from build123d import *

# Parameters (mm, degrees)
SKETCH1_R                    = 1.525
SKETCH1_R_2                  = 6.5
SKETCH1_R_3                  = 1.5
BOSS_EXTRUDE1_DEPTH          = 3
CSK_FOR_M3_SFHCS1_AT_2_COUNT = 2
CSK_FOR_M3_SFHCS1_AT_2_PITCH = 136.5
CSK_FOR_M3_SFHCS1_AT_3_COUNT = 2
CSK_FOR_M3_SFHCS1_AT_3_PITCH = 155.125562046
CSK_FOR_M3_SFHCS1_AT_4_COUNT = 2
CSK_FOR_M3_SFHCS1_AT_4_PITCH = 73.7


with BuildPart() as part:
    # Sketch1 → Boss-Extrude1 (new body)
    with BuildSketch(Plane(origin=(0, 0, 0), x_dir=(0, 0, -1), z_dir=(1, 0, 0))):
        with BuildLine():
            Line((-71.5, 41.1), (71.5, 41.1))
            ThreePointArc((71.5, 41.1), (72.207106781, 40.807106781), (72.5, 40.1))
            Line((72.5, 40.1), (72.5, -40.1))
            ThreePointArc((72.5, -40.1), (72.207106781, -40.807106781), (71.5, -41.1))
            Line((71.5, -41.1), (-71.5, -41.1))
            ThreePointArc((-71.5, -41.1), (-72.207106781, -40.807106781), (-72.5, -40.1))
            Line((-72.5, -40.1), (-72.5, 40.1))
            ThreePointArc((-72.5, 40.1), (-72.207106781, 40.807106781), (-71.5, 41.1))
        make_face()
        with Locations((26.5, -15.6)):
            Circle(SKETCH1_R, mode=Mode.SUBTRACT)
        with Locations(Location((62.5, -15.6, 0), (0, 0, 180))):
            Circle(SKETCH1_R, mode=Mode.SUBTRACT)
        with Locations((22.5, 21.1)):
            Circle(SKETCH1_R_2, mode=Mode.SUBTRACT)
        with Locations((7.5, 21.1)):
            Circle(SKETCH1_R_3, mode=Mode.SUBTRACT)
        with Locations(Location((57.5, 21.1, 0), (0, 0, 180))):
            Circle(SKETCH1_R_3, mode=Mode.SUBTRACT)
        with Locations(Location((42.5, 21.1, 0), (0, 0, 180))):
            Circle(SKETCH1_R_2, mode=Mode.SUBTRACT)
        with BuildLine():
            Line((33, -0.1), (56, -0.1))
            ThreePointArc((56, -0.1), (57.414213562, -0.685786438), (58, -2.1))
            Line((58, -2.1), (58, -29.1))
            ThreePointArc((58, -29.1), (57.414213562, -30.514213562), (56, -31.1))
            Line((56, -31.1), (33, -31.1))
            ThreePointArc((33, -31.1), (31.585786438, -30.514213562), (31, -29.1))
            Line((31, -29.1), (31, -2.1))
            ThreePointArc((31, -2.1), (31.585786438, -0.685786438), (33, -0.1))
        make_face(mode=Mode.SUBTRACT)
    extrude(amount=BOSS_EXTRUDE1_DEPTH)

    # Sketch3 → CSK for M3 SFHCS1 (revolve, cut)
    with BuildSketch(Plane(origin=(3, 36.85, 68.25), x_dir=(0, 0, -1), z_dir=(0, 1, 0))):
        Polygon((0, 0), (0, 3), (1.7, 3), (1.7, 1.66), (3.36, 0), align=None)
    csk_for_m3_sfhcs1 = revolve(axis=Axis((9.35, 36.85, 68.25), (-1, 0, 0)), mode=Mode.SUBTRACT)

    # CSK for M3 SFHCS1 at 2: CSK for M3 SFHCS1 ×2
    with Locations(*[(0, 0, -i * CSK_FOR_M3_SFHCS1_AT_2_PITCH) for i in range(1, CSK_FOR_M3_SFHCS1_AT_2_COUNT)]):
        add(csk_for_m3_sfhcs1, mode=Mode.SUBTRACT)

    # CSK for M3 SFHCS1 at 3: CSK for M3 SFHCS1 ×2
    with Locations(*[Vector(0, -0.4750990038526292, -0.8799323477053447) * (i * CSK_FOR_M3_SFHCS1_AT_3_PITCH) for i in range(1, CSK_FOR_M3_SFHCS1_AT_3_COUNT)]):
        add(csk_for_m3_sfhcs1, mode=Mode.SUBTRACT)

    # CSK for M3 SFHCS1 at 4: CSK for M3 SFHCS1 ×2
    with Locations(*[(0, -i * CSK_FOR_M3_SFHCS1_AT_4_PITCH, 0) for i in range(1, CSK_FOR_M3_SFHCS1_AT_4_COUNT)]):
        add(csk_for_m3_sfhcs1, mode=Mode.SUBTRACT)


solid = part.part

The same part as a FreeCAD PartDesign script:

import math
import FreeCAD as App
import Part
import Sketcher
from FreeCAD import Vector
Q = App.Units.Quantity


def add_polygon(sketch, points):
    """Adds a closed chain of lines whose ends are joined by coincident constraints."""
    first, n = sketch.GeometryCount, len(points)
    for a, b in zip(points, points[1:] + points[:1]):
        sketch.addGeometry(Part.LineSegment(App.Vector(*a, 0), App.Vector(*b, 0)), False)
    for i in range(n):
        sketch.addConstraint(Sketcher.Constraint("Coincident", first + i, 2, first + (i + 1) % n, 1))

doc = App.newDocument("Part")
body = doc.addObject("PartDesign::Body", "Body")

# Sketch on YZ plane
sketch1 = body.newObject("Sketcher::SketchObject", "Sketch")
sketch1.AttachmentSupport = (doc.getObject("YZ_Plane"), [""])
sketch1.MapMode = "FlatFace"
sketch1.addGeometry([
    Part.LineSegment(Vector(41.1, -71.5, 0), Vector(41.1, 71.5, 0)),  # 0
    Part.ArcOfCircle(Part.Circle(Vector(40.1, 71.5, 0), Vector(0, 0, 1), 1), math.radians(0), math.radians(90)),  # 1
    Part.LineSegment(Vector(40.1, 72.5, 0), Vector(-40.1, 72.5, 0)),  # 2
    Part.ArcOfCircle(Part.Circle(Vector(-40.1, 71.5, 0), Vector(0, 0, 1), 1), math.radians(90), math.radians(180)),  # 3
    Part.LineSegment(Vector(-41.1, 71.5, 0), Vector(-41.1, -71.5, 0)),  # 4
    Part.ArcOfCircle(Part.Circle(Vector(-40.1, -71.5, 0), Vector(0, 0, 1), 1), math.radians(-180), math.radians(-90)),  # 5
    Part.LineSegment(Vector(-40.1, -72.5, 0), Vector(40.1, -72.5, 0)),  # 6
    Part.ArcOfCircle(Part.Circle(Vector(40.1, -71.5, 0), Vector(0, 0, 1), 1), math.radians(-90), math.radians(0)),  # 7
    Part.Circle(Vector(-15.6, -62.5, 0), Vector(0, 0, 1), 1.525),  # 8
    Part.LineSegment(Vector(-0.1, -33, 0), Vector(-0.1, -56, 0)),  # 9
    Part.ArcOfCircle(Part.Circle(Vector(-2.1, -56, 0), Vector(0, 0, 1), 2), math.radians(-90), math.radians(0)),  # 10
    Part.LineSegment(Vector(-2.1, -58, 0), Vector(-29.1, -58, 0)),  # 11
    Part.ArcOfCircle(Part.Circle(Vector(-29.1, -56, 0), Vector(0, 0, 1), 2), math.radians(-180), math.radians(-90)),  # 12
    Part.LineSegment(Vector(-31.1, -56, 0), Vector(-31.1, -33, 0)),  # 13
    Part.ArcOfCircle(Part.Circle(Vector(-29.1, -33, 0), Vector(0, 0, 1), 2), math.radians(90), math.radians(180)),  # 14
    Part.LineSegment(Vector(-29.1, -31, 0), Vector(-2.1, -31, 0)),  # 15
    Part.ArcOfCircle(Part.Circle(Vector(-2.1, -33, 0), Vector(0, 0, 1), 2), math.radians(0), math.radians(90)),  # 16
    Part.Circle(Vector(-15.6, -26.5, 0), Vector(0, 0, 1), 1.525),  # 17
    Part.Circle(Vector(21.1, -57.5, 0), Vector(0, 0, 1), 1.5),  # 18
    Part.Circle(Vector(21.1, -42.5, 0), Vector(0, 0, 1), 6.5),  # 19
    Part.Circle(Vector(21.1, -22.5, 0), Vector(0, 0, 1), 6.5),  # 20
    Part.Circle(Vector(21.1, -7.5, 0), Vector(0, 0, 1), 1.5),  # 21
], False)
sketch1.addConstraint([
    Sketcher.Constraint("Tangent", 0, 2, 1, 1),
    Sketcher.Constraint("Tangent", 1, 2, 2, 1),
    Sketcher.Constraint("Tangent", 2, 2, 3, 1),
    Sketcher.Constraint("Tangent", 3, 2, 4, 1),
    Sketcher.Constraint("Tangent", 4, 2, 5, 1),
    Sketcher.Constraint("Tangent", 5, 2, 6, 1),
    Sketcher.Constraint("Tangent", 6, 2, 7, 1),
    Sketcher.Constraint("Tangent", 7, 2, 0, 1),
    Sketcher.Constraint("Tangent", 9, 2, 10, 2),
    Sketcher.Constraint("Tangent", 10, 1, 11, 1),
    Sketcher.Constraint("Tangent", 11, 2, 12, 2),
    Sketcher.Constraint("Tangent", 12, 1, 13, 1),
    Sketcher.Constraint("Tangent", 13, 2, 14, 2),
    Sketcher.Constraint("Tangent", 14, 1, 15, 1),
    Sketcher.Constraint("Tangent", 15, 2, 16, 2),
    Sketcher.Constraint("Tangent", 16, 1, 9, 1),
    Sketcher.Constraint("Vertical", 0),
    Sketcher.Constraint("Horizontal", 2),
    Sketcher.Constraint("Vertical", 4),
    Sketcher.Constraint("Horizontal", 6),
    Sketcher.Constraint("Vertical", 9),
    Sketcher.Constraint("Horizontal", 11),
    Sketcher.Constraint("Vertical", 13),
    Sketcher.Constraint("Horizontal", 15),
    Sketcher.Constraint("Equal", 1, 3),
    Sketcher.Constraint("Equal", 3, 5),
    Sketcher.Constraint("Equal", 5, 7),
    Sketcher.Constraint("Equal", 10, 12),
    Sketcher.Constraint("Equal", 12, 14),
    Sketcher.Constraint("Equal", 14, 16),
    Sketcher.Constraint("Equal", 8, 17),
    Sketcher.Constraint("Equal", 19, 20),
    Sketcher.Constraint("Equal", 18, 21),
    Sketcher.Constraint("Symmetric", 1, 3, 5, 3, -1, 1),
    Sketcher.Constraint("Vertical", 8, 3, 17, 3),
    Sketcher.Constraint("Vertical", 18, 3, 19, 3),
    Sketcher.Constraint("Vertical", 19, 3, 20, 3),
    Sketcher.Constraint("Vertical", 20, 3, 21, 3),
    Sketcher.Constraint("Diameter", 18, Q("3 mm")),
    Sketcher.Constraint("Diameter", 19, Q("13 mm")),
    Sketcher.Constraint("Radius", 1, Q("1 mm")),
    Sketcher.Constraint("Radius", 10, Q("2 mm")),
    Sketcher.Constraint("Diameter", 8, Q("3.05 mm")),
    Sketcher.Constraint("DistanceX", 11, 2, 11, 1, Q("27 mm")),
    Sketcher.Constraint("DistanceY", 0, 1, 0, 2, Q("143 mm")),
    Sketcher.Constraint("DistanceY", 9, 2, 9, 1, Q("23 mm")),
    Sketcher.Constraint("DistanceX", 2, 2, 2, 1, Q("80.2 mm")),
    Sketcher.Constraint("DistanceY", 10, 3, -1, 1, Q("56 mm")),
    Sketcher.Constraint("DistanceY", 5, 3, 8, 3, Q("9 mm")),
    Sketcher.Constraint("DistanceX", 5, 3, 10, 3, Q("38 mm")),
    Sketcher.Constraint("DistanceY", 8, 3, 17, 3, Q("36 mm")),
    Sketcher.Constraint("DistanceX", 18, 3, 7, 3, Q("19 mm")),
    Sketcher.Constraint("DistanceY", 7, 3, 18, 3, Q("14 mm")),
    Sketcher.Constraint("DistanceY", 18, 3, 19, 3, Q("15 mm")),
    Sketcher.Constraint("DistanceY", 19, 3, 20, 3, Q("20 mm")),
    Sketcher.Constraint("DistanceY", 20, 3, 21, 3, Q("15 mm")),
    Sketcher.Constraint("DistanceX", 8, 3, -1, 1, Q("15.6 mm")),
])
pad1 = body.newObject("PartDesign::Pad", "Pad")
pad1.Profile = sketch1
pad1.Length = 3

# Sketch on XZ plane
sketch2 = body.newObject("Sketcher::SketchObject", "Sketch001")
sketch2.AttachmentSupport = (doc.getObject("XZ_Plane"), [""])
sketch2.MapMode = "FlatFace"
sketch2.AttachmentOffset = App.Placement(Vector(0, 0, -36.85), App.Rotation())
add_polygon(sketch2, [(0, 68.25), (3, 68.25), (3, 64.89), (1.34, 66.55), (0, 66.55)])  # lines 0-4
sketch2.addGeometry(Part.LineSegment(Vector(3, 68.25, 0), Vector(0, 68.25, 0)), True)  # axis
sketch2.addConstraint([
    Sketcher.Constraint("Horizontal", 0),
    Sketcher.Constraint("Vertical", 1),
    Sketcher.Constraint("Horizontal", 3),
    Sketcher.Constraint("Vertical", 4),
    Sketcher.Constraint("Horizontal", 5),
    Sketcher.Constraint("Coincident", 5, 1, 0, 2),
    Sketcher.Constraint("PointOnObject", 3, 2, -2),
    Sketcher.Constraint("PointOnObject", 5, 2, -2),
    Sketcher.Constraint("DistanceX", 0, 1, 0, 2, Q("3 mm")),
    Sketcher.Constraint("Angle", 2, Q("135 deg")),
    Sketcher.Constraint("DistanceY", 4, 1, 4, 2, Q("1.7 mm")),
    Sketcher.Constraint("DistanceX", 3, 2, 3, 1, Q("1.34 mm")),
    Sketcher.Constraint("DistanceY", -1, 1, 0, 2, Q("68.25 mm")),
])
groove = body.newObject("PartDesign::Groove", "Groove")
groove.Profile = sketch2
groove.ReferenceAxis = (sketch2, ["Axis0"])
groove.Angle = 360
doc.recompute()

linearpattern = body.newObject("PartDesign::LinearPattern", "LinearPattern")
linearpattern.Originals = [groove]
linearpattern.Direction = (doc.getObject("Z_Axis"), [""])
linearpattern.Mode = "offset"
linearpattern.Offset = 136.5
linearpattern.Occurrences = 2
linearpattern.Reversed = True
body.Tip = linearpattern
doc.recompute()

datumline = body.newObject("PartDesign::Line", "DatumLine")
datumline.Placement = App.Placement(Vector(0, 0, 0), App.Rotation(Vector(0, 0, 1), Vector(0, -0.475099004, -0.879932348)))
linearpattern2 = body.newObject("PartDesign::LinearPattern", "LinearPattern001")
linearpattern2.Originals = [groove]
linearpattern2.Direction = (datumline, [""])
linearpattern2.Mode = "offset"
linearpattern2.Offset = 155.125562
linearpattern2.Occurrences = 2
body.Tip = linearpattern2
doc.recompute()

linearpattern3 = body.newObject("PartDesign::LinearPattern", "LinearPattern002")
linearpattern3.Originals = [groove]
linearpattern3.Direction = (doc.getObject("Y_Axis"), [""])
linearpattern3.Mode = "offset"
linearpattern3.Offset = 73.7
linearpattern3.Occurrences = 2
linearpattern3.Reversed = True
body.Tip = linearpattern3

doc.recompute()
